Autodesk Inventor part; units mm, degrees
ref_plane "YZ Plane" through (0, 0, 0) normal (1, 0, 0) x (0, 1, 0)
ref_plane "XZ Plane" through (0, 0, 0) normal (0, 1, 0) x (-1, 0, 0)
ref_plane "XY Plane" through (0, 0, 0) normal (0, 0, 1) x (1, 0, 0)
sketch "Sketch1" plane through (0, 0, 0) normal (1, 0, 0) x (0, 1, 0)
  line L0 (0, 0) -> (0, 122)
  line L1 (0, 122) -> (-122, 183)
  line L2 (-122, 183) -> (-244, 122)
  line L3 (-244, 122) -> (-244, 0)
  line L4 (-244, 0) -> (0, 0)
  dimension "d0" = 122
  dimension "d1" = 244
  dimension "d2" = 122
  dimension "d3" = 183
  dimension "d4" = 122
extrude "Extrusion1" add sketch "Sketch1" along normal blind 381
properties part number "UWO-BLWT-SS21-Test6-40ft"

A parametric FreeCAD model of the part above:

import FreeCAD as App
import Part
import Sketcher
Q = App.Units.Quantity

doc = App.newDocument("Part")
body = doc.addObject("PartDesign::Body", "Body")

# Sketch on YZ plane
sketch1 = body.newObject("Sketcher::SketchObject", "Sketch")
sketch1.AttachmentSupport = (doc.getObject("YZ_Plane"), [""])
sketch1.MapMode = "FlatFace"
sketch1.addGeometry([
    Part.LineSegment(App.Vector(-244, 0, 0), App.Vector(0, 0, 0)),  # 0
    Part.LineSegment(App.Vector(0, 0, 0), App.Vector(0, 122, 0)),  # 1
    Part.LineSegment(App.Vector(0, 122, 0), App.Vector(-122, 183, 0)),  # 2
    Part.LineSegment(App.Vector(-122, 183, 0), App.Vector(-244, 122, 0)),  # 3
    Part.LineSegment(App.Vector(-244, 122, 0), App.Vector(-244, 0, 0)),  # 4
], False)
sketch1.addConstraint([
    Sketcher.Constraint("Coincident", 0, 2, 1, 1),
    Sketcher.Constraint("Coincident", 1, 2, 2, 1),
    Sketcher.Constraint("Coincident", 2, 2, 3, 1),
    Sketcher.Constraint("Coincident", 3, 2, 4, 1),
    Sketcher.Constraint("Coincident", 4, 2, 0, 1),
    Sketcher.Constraint("Horizontal", 0),
    Sketcher.Constraint("Vertical", 1),
    Sketcher.Constraint("Vertical", 4),
    Sketcher.Constraint("Coincident", 0, 2, -1, 1),
    Sketcher.Constraint("Horizontal", 1, 2, 3, 2),
    Sketcher.Constraint("Equal", 2, 3),
    Sketcher.Constraint("DistanceX", 0, 1, 0, 2, Q("244 mm")),
    Sketcher.Constraint("DistanceY", 1, 1, 1, 2, Q("122 mm")),
    Sketcher.Constraint("DistanceY", -1, 1, 2, 2, Q("183 mm")),
])
pad1 = body.newObject("PartDesign::Pad", "Pad")
pad1.Profile = sketch1
pad1.Length = 381

doc.recompute()
